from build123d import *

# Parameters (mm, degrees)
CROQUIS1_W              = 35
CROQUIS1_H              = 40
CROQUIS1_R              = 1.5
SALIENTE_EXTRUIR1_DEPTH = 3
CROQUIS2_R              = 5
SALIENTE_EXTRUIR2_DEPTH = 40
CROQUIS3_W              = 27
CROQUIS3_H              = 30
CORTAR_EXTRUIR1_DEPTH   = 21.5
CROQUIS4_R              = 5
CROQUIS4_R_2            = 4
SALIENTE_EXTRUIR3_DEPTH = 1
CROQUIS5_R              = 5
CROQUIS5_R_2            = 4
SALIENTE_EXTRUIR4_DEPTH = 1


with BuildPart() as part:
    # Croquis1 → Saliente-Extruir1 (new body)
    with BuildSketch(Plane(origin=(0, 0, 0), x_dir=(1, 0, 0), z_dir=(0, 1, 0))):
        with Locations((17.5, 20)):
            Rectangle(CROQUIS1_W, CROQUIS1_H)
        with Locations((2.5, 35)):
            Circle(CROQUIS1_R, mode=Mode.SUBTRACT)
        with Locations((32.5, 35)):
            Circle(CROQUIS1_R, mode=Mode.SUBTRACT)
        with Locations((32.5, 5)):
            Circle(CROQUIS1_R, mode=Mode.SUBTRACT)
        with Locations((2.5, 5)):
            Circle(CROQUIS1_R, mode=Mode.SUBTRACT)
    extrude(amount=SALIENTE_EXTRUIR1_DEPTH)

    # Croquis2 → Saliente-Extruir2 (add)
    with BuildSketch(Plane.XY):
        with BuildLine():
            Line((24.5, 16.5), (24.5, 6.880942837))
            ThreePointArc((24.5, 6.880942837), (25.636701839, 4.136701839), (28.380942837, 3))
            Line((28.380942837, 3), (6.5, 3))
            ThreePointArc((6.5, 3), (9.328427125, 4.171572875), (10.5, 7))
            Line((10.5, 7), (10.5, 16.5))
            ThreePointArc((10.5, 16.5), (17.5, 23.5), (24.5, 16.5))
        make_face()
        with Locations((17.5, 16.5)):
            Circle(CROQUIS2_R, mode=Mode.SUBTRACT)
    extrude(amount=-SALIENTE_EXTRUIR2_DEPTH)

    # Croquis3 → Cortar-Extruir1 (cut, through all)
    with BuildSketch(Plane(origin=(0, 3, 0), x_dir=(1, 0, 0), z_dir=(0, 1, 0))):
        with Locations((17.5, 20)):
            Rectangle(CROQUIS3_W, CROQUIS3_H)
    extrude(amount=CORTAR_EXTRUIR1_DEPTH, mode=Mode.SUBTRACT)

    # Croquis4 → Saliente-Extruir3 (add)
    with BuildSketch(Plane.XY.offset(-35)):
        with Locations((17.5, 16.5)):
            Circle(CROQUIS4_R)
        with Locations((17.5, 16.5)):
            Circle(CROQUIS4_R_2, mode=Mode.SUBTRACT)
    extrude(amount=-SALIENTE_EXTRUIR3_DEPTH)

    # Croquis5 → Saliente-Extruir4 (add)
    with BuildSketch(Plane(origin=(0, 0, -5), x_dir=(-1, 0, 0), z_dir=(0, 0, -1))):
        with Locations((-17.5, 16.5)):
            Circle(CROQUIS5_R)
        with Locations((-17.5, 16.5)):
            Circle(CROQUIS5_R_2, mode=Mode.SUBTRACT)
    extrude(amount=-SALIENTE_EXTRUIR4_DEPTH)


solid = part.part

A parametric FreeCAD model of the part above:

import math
import FreeCAD as App
import Part
import Sketcher
from FreeCAD import Vector
Q = App.Units.Quantity


def add_polygon(sketch, points):
    """Adds a closed chain of lines whose ends are joined by coincident constraints."""
    first, n = sketch.GeometryCount, len(points)
    for a, b in zip(points, points[1:] + points[:1]):
        sketch.addGeometry(Part.LineSegment(App.Vector(*a, 0), App.Vector(*b, 0)), False)
    for i in range(n):
        sketch.addConstraint(Sketcher.Constraint("Coincident", first + i, 2, first + (i + 1) % n, 1))

doc = App.newDocument("Part")
body = doc.addObject("PartDesign::Body", "Body")

# Sketch on XZ plane
sketch1 = doc.addObject("Sketcher::SketchObject", "Sketch")
body.addObject(sketch1)
sketch1.AttachmentSupport = (doc.XZ_Plane, [""])
sketch1.MapMode = "FlatFace"
add_polygon(sketch1, [(0, -40), (0, 0), (35, 0), (35, -40)])  # lines 0-3
sketch1.addGeometry(Part.Circle(Vector(2.5, -5, 0), Vector(0, 0, 1), 1.5), False)  # 4
sketch1.addGeometry(Part.Circle(Vector(32.5, -5, 0), Vector(0, 0, 1), 1.5), False)  # 5
sketch1.addGeometry(Part.Circle(Vector(2.5, -35, 0), Vector(0, 0, 1), 1.5), False)  # 6
sketch1.addGeometry(Part.Circle(Vector(32.5, -35, 0), Vector(0, 0, 1), 1.5), False)  # 7
sketch1.addConstraint([
    Sketcher.Constraint("Vertical", 0),
    Sketcher.Constraint("Horizontal", 1),
    Sketcher.Constraint("Vertical", 2),
    Sketcher.Constraint("Horizontal", 3),
    Sketcher.Constraint("Coincident", 0, 2, -1, 1),
    Sketcher.Constraint("Equal", 4, 5),
    Sketcher.Constraint("Equal", 5, 6),
    Sketcher.Constraint("Equal", 6, 7),
    Sketcher.Constraint("Horizontal", 4, 3, 5, 3),
    Sketcher.Constraint("Horizontal", 6, 3, 7, 3),
    Sketcher.Constraint("Vertical", 4, 3, 6, 3),
    Sketcher.Constraint("Vertical", 5, 3, 7, 3),
    Sketcher.Constraint("Diameter", 4, Q("3 mm")),
    Sketcher.Constraint("DistanceX", 1, 1, 1, 2, Q("35 mm")),
    Sketcher.Constraint("DistanceY", 0, 1, 0, 2, Q("40 mm")),
    Sketcher.Constraint("DistanceY", 4, 3, -1, 1, Q("5 mm")),
    Sketcher.Constraint("DistanceY", 6, 3, -1, 1, Q("35 mm")),
    Sketcher.Constraint("DistanceX", 4, 3, 5, 3, Q("30 mm")),
    Sketcher.Constraint("DistanceX", -1, 1, 4, 3, Q("2.5 mm")),
])
pad1 = doc.addObject("PartDesign::Pad", "Pad")
body.addObject(pad1)
pad1.Profile = sketch1
pad1.Length = 3
pad1.Reversed = True

# Sketch on XY plane
sketch2 = doc.addObject("Sketcher::SketchObject", "Sketch001")
body.addObject(sketch2)
sketch2.AttachmentSupport = (doc.XY_Plane, [""])
sketch2.MapMode = "FlatFace"
sketch2.addGeometry([
    Part.LineSegment(Vector(24.5, 6.9, 0), Vector(24.5, 16.5, 0)),  # 0
    Part.ArcOfCircle(Part.Circle(Vector(17.5, 16.5, 0), Vector(0, 0, 1), 7), math.radians(0), math.radians(180)),  # 1
    Part.LineSegment(Vector(10.5, 16.5, 0), Vector(10.5, 7, 0)),  # 2
    Part.ArcOfCircle(Part.Circle(Vector(6.5, 7, 0), Vector(0, 0, 1), 4), math.radians(-90), math.radians(0)),  # 3
    Part.LineSegment(Vector(6.5, 3, 0), Vector(28.4, 3, 0)),  # 4
    Part.ArcOfCircle(Part.Circle(Vector(28.4, 6.9, 0), Vector(0, 0, 1), 3.9), math.radians(180), math.radians(270)),  # 5
    Part.Circle(Vector(17.5, 16.5, 0), Vector(0, 0, 1), 5),  # 6
], False)
sketch2.addConstraint([
    Sketcher.Constraint("Tangent", 0, 2, 1, 1),
    Sketcher.Constraint("Tangent", 1, 2, 2, 1),
    Sketcher.Constraint("Tangent", 2, 2, 3, 2),
    Sketcher.Constraint("Tangent", 3, 1, 4, 1),
    Sketcher.Constraint("Tangent", 4, 2, 5, 2),
    Sketcher.Constraint("Tangent", 5, 1, 0, 1),
    Sketcher.Constraint("Vertical", 0),
    Sketcher.Constraint("Vertical", 2),
    Sketcher.Constraint("Horizontal", 4),
    Sketcher.Constraint("Coincident", 6, 3, 1, 3),
    Sketcher.Constraint("Diameter", 6, Q("10 mm")),
    Sketcher.Constraint("Radius", 1, Q("7 mm")),
    Sketcher.Constraint("Radius", 3, Q("4 mm")),
    Sketcher.Constraint("DistanceY", 2, 2, 2, 1, Q("9.5 mm")),
    Sketcher.Constraint("DistanceY", -1, 1, 3, 3, Q("7 mm")),
    Sketcher.Constraint("DistanceX", -1, 1, 1, 3, Q("17.5 mm")),
    Sketcher.Constraint("Radius", 5, Q("3.880943 mm")),
])
pad2 = doc.addObject("PartDesign::Pad", "Pad001")
body.addObject(pad2)
pad2.Profile = sketch2
pad2.Length = 40
pad2.Reversed = True

# Sketch on XZ plane
sketch3 = doc.addObject("Sketcher::SketchObject", "Sketch002")
body.addObject(sketch3)
sketch3.AttachmentSupport = (doc.XZ_Plane, [""])
sketch3.MapMode = "FlatFace"
sketch3.AttachmentOffset = App.Placement(Vector(0, 0, -3), App.Rotation())
add_polygon(sketch3, [(4, -35), (4, -5), (31, -5), (31, -35)])  # lines 0-3
sketch3.addConstraint([
    Sketcher.Constraint("Vertical", 0),
    Sketcher.Constraint("Horizontal", 1),
    Sketcher.Constraint("Vertical", 2),
    Sketcher.Constraint("Horizontal", 3),
    Sketcher.Constraint("DistanceX", 1, 1, 1, 2, Q("27 mm")),
    Sketcher.Constraint("DistanceY", 0, 1, 0, 2, Q("30 mm")),
    Sketcher.Constraint("DistanceX", -1, 1, 0, 2, Q("4 mm")),
    Sketcher.Constraint("DistanceY", 0, 2, -1, 1, Q("5 mm")),
])
pocket1 = doc.addObject("PartDesign::Pocket", "Pocket")
body.addObject(pocket1)
pocket1.Profile = sketch3
pocket1.Type = "ThroughAll"

# Sketch on XY plane
sketch4 = doc.addObject("Sketcher::SketchObject", "Sketch003")
body.addObject(sketch4)
sketch4.AttachmentSupport = (doc.XY_Plane, [""])
sketch4.MapMode = "FlatFace"
sketch4.AttachmentOffset = App.Placement(Vector(0, 0, -35), App.Rotation())
sketch4.addGeometry([
    Part.Circle(Vector(17.5, 16.5, 0), Vector(0, 0, 1), 5),
    Part.Circle(Vector(17.5, 16.5, 0), Vector(0, 0, 1), 4),
], False)
sketch4.addConstraint([
    Sketcher.Constraint("Coincident", 1, 3, 0, 3),
    Sketcher.Constraint("Diameter", 0, Q("10 mm")),
    Sketcher.Constraint("Diameter", 1, Q("8 mm")),
    Sketcher.Constraint("DistanceX", -1, 1, 0, 3, Q("17.5 mm")),
    Sketcher.Constraint("DistanceY", -1, 1, 0, 3, Q("16.5 mm")),
])
pad3 = doc.addObject("PartDesign::Pad", "Pad002")
body.addObject(pad3)
pad3.Profile = sketch4
pad3.Length = 1
pad3.Reversed = True

# Sketch on XY plane
sketch5 = doc.addObject("Sketcher::SketchObject", "Sketch004")
body.addObject(sketch5)
sketch5.AttachmentSupport = (doc.XY_Plane, [""])
sketch5.MapMode = "FlatFace"
sketch5.AttachmentOffset = App.Placement(Vector(0, 0, -5), App.Rotation())
sketch5.addGeometry([
    Part.Circle(Vector(17.5, 16.5, 0), Vector(0, 0, 1), 5),
    Part.Circle(Vector(17.5, 16.5, 0), Vector(0, 0, 1), 4),
], False)
sketch5.addConstraint([
    Sketcher.Constraint("Coincident", 1, 3, 0, 3),
    Sketcher.Constraint("Diameter", 0, Q("10 mm")),
    Sketcher.Constraint("Diameter", 1, Q("8 mm")),
    Sketcher.Constraint("DistanceX", -1, 1, 0, 3, Q("17.5 mm")),
    Sketcher.Constraint("DistanceY", -1, 1, 0, 3, Q("16.5 mm")),
])
pad4 = doc.addObject("PartDesign::Pad", "Pad003")
body.addObject(pad4)
pad4.Profile = sketch5
pad4.Length = 1

doc.recompute()
